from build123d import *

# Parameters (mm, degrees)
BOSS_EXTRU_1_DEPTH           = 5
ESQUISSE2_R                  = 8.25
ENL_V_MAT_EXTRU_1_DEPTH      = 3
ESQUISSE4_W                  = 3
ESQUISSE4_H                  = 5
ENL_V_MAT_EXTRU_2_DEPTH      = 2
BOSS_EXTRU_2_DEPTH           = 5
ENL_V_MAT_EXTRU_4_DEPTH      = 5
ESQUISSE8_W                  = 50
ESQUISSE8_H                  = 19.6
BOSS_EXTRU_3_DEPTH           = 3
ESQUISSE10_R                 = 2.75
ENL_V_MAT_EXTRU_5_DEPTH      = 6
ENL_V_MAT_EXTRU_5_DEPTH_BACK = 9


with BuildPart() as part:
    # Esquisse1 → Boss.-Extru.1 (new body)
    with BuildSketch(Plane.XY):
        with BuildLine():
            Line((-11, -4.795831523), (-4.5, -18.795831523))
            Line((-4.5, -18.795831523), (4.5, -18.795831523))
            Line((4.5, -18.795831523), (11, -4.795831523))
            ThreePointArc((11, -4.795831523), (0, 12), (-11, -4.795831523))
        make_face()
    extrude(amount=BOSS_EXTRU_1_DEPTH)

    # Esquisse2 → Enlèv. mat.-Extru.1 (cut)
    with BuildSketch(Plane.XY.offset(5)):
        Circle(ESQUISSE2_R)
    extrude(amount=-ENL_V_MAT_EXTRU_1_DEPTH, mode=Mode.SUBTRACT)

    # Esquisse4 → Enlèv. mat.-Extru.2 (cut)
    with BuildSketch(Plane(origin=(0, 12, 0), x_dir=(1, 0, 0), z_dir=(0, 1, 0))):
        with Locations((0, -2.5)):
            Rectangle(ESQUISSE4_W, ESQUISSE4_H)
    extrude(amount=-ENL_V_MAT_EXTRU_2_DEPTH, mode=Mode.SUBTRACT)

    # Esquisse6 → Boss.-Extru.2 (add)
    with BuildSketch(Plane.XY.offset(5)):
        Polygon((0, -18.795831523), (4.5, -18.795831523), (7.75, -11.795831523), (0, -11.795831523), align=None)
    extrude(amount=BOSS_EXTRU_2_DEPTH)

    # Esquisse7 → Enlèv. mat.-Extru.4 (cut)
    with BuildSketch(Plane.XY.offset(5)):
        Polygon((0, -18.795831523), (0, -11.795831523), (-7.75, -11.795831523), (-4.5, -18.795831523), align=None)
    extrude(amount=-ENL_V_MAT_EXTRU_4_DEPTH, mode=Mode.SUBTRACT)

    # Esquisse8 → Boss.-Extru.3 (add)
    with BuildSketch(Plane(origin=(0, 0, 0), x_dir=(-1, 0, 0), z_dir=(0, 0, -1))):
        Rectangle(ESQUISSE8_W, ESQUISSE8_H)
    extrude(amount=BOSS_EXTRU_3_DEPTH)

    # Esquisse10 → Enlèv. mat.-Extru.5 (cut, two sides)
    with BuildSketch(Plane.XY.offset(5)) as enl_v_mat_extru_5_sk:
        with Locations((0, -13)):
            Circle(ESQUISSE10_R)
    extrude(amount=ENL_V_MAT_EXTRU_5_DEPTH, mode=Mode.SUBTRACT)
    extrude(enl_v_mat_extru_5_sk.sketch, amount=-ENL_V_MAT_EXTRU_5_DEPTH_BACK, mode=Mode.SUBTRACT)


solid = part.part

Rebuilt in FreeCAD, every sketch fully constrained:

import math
import FreeCAD as App
import Part
import Sketcher


def add_polygon(sketch, points):
    """Adds a closed chain of lines whose ends are joined by coincident constraints."""
    first, n = sketch.GeometryCount, len(points)
    for a, b in zip(points, points[1:] + points[:1]):
        sketch.addGeometry(Part.LineSegment(App.Vector(*a, 0), App.Vector(*b, 0)), False)
    for i in range(n):
        sketch.addConstraint(Sketcher.Constraint("Coincident", first + i, 2, first + (i + 1) % n, 1))

doc = App.newDocument("Part")
body = doc.addObject("PartDesign::Body", "Body")

sketch1 = doc.addObject("Sketcher::SketchObject", "Sketch")
body.addObject(sketch1)
sketch1.AttachmentSupport = (doc.XY_Plane, [""])
sketch1.MapMode = "FlatFace"
sketch1.addGeometry([
    Part.LineSegment(App.Vector(-11, -5, 0), App.Vector(-4, -19, 0)),
    Part.LineSegment(App.Vector(-4, -19, 0), App.Vector(4, -19, 0)),
    Part.LineSegment(App.Vector(4, -19, 0), App.Vector(11, -5, 0)),
    Part.ArcOfCircle(Part.Circle(App.Vector(0, 0, 0), App.Vector(0, 0, 1), 12), math.radians(-24), math.radians(204)),
], False)
sketch1.addConstraint([
    Sketcher.Constraint("Coincident", 0, 2, 1, 1),
    Sketcher.Constraint("Coincident", 1, 2, 2, 1),
    Sketcher.Constraint("Coincident", 2, 2, 3, 1),
    Sketcher.Constraint("Coincident", 3, 2, 0, 1),
    Sketcher.Constraint("Horizontal", 1),
    Sketcher.Constraint("Coincident", 3, 3, -1, 1),
    Sketcher.Constraint("Horizontal", 2, 2, 3, 2),
    Sketcher.Constraint("Equal", 0, 2),
    Sketcher.Constraint("Radius", 3, 12.0),
    Sketcher.Constraint("DistanceX", 1, 1, 1, 2, 9.0),
    Sketcher.Constraint("DistanceX", -1, 1, 2, 2, 11.0),
    Sketcher.Constraint("DistanceY", 1, 2, 2, 2, 14.0),
])
pad1 = doc.addObject("PartDesign::Pad", "Pad")
body.addObject(pad1)
pad1.Profile = sketch1
pad1.Length = 5

sketch2 = doc.addObject("Sketcher::SketchObject", "Sketch001")
body.addObject(sketch2)
sketch2.AttachmentSupport = (doc.XY_Plane, [""])
sketch2.MapMode = "FlatFace"
sketch2.AttachmentOffset = App.Placement(App.Vector(0, 0, 5), App.Rotation())
sketch2.addGeometry(Part.Circle(App.Vector(0, 0, 0), App.Vector(0, 0, 1), 8), False)
sketch2.addConstraint([
    Sketcher.Constraint("Coincident", 0, 3, -1, 1),
    Sketcher.Constraint("Diameter", 0, 16.5),
])
pocket1 = doc.addObject("PartDesign::Pocket", "Pocket")
body.addObject(pocket1)
pocket1.Profile = sketch2
pocket1.Length = 3

sketch3 = doc.addObject("Sketcher::SketchObject", "Sketch002")
body.addObject(sketch3)
sketch3.AttachmentSupport = (doc.XZ_Plane, [""])
sketch3.MapMode = "FlatFace"
sketch3.AttachmentOffset = App.Placement(App.Vector(0, 0, -12), App.Rotation())
add_polygon(sketch3, [(-1.5, 0), (-1.5, 5), (1.5, 5), (1.5, 0)])
sketch3.addConstraint([
    Sketcher.Constraint("Vertical", 0),
    Sketcher.Constraint("Horizontal", 1),
    Sketcher.Constraint("Vertical", 2),
    Sketcher.Constraint("Horizontal", 3),
    Sketcher.Constraint("Symmetric", 2, 2, 3, 2, -1, 1),
    Sketcher.Constraint("DistanceX", 1, 1, 1, 2, 3.0),
    Sketcher.Constraint("DistanceY", 0, 1, 0, 2, 5.0),
])
pocket2 = doc.addObject("PartDesign::Pocket", "Pocket001")
body.addObject(pocket2)
pocket2.Profile = sketch3
pocket2.Length = 2
pocket2.Reversed = True

sketch4 = doc.addObject("Sketcher::SketchObject", "Sketch003")
body.addObject(sketch4)
sketch4.AttachmentSupport = (doc.XY_Plane, [""])
sketch4.MapMode = "FlatFace"
sketch4.AttachmentOffset = App.Placement(App.Vector(0, 0, 5), App.Rotation())
add_polygon(sketch4, [(0, -18.8), (4.5, -18.8), (7.8, -11.8), (0, -11.8)])
sketch4.addConstraint([
    Sketcher.Constraint("Horizontal", 0),
    Sketcher.Constraint("Horizontal", 2),
    Sketcher.Constraint("Vertical", 3),
    Sketcher.Constraint("PointOnObject", 2, 2, -2),
    Sketcher.Constraint("DistanceY", 3, 2, 3, 1, 7.0),
    Sketcher.Constraint("DistanceX", 0, 1, 0, 2, 4.5),
    Sketcher.Constraint("DistanceX", 2, 2, 2, 1, 7.75),
    Sketcher.Constraint("DistanceY", 0, 2, -1, 1, 18.795832),
])
pad2 = doc.addObject("PartDesign::Pad", "Pad001")
body.addObject(pad2)
pad2.Profile = sketch4
pad2.Length = 5

sketch5 = doc.addObject("Sketcher::SketchObject", "Sketch004")
body.addObject(sketch5)
sketch5.AttachmentSupport = (doc.XY_Plane, [""])
sketch5.MapMode = "FlatFace"
sketch5.AttachmentOffset = App.Placement(App.Vector(0, 0, 5), App.Rotation())
add_polygon(sketch5, [(0, -18.8), (0, -11.8), (-7.8, -11.8), (-4.5, -18.8)])
sketch5.addConstraint([
    Sketcher.Constraint("Vertical", 0),
    Sketcher.Constraint("Horizontal", 1),
    Sketcher.Constraint("Horizontal", 3),
    Sketcher.Constraint("PointOnObject", 0, 2, -2),
    Sketcher.Constraint("DistanceY", 0, 1, 0, 2, 7.0),
    Sketcher.Constraint("DistanceX", 3, 1, 3, 2, 4.5),
    Sketcher.Constraint("DistanceX", 1, 2, 1, 1, 7.75),
    Sketcher.Constraint("DistanceY", 0, 2, -1, 1, 11.795832),
])
pocket3 = doc.addObject("PartDesign::Pocket", "Pocket002")
body.addObject(pocket3)
pocket3.Profile = sketch5
pocket3.Length = 5

sketch6 = doc.addObject("Sketcher::SketchObject", "Sketch005")
body.addObject(sketch6)
sketch6.AttachmentSupport = (doc.XY_Plane, [""])
sketch6.MapMode = "FlatFace"
add_polygon(sketch6, [(25, 10), (25, -10), (-25, -10), (-25, 10)])
sketch6.addConstraint([
    Sketcher.Constraint("Vertical", 0),
    Sketcher.Constraint("Horizontal", 1),
    Sketcher.Constraint("Vertical", 2),
    Sketcher.Constraint("Horizontal", 3),
    Sketcher.Constraint("Symmetric", 0, 2, 2, 2, -1, 1),
    Sketcher.Constraint("DistanceX", 1, 2, 1, 1, 50.0),
    Sketcher.Constraint("DistanceY", 0, 2, 0, 1, 19.6),
])
pad3 = doc.addObject("PartDesign::Pad", "Pad002")
body.addObject(pad3)
pad3.Profile = sketch6
pad3.Length = 3
pad3.Reversed = True

sketch7 = doc.addObject("Sketcher::SketchObject", "Sketch006")
body.addObject(sketch7)
sketch7.AttachmentSupport = (doc.XY_Plane, [""])
sketch7.MapMode = "FlatFace"
sketch7.AttachmentOffset = App.Placement(App.Vector(0, 0, 5), App.Rotation())
sketch7.addGeometry(Part.Circle(App.Vector(0, -13, 0), App.Vector(0, 0, 1), 2.8), False)
sketch7.addConstraint([
    Sketcher.Constraint("PointOnObject", 0, 3, -2),
    Sketcher.Constraint("Diameter", 0, 5.5),
    Sketcher.Constraint("DistanceY", 0, 3, -1, 1, 13.0),
])
pocket4 = doc.addObject("PartDesign::Pocket", "Pocket003")
body.addObject(pocket4)
pocket4.Profile = sketch7
pocket4.Type = "ThroughAll"
pocket4.Midplane = True

doc.recompute()
